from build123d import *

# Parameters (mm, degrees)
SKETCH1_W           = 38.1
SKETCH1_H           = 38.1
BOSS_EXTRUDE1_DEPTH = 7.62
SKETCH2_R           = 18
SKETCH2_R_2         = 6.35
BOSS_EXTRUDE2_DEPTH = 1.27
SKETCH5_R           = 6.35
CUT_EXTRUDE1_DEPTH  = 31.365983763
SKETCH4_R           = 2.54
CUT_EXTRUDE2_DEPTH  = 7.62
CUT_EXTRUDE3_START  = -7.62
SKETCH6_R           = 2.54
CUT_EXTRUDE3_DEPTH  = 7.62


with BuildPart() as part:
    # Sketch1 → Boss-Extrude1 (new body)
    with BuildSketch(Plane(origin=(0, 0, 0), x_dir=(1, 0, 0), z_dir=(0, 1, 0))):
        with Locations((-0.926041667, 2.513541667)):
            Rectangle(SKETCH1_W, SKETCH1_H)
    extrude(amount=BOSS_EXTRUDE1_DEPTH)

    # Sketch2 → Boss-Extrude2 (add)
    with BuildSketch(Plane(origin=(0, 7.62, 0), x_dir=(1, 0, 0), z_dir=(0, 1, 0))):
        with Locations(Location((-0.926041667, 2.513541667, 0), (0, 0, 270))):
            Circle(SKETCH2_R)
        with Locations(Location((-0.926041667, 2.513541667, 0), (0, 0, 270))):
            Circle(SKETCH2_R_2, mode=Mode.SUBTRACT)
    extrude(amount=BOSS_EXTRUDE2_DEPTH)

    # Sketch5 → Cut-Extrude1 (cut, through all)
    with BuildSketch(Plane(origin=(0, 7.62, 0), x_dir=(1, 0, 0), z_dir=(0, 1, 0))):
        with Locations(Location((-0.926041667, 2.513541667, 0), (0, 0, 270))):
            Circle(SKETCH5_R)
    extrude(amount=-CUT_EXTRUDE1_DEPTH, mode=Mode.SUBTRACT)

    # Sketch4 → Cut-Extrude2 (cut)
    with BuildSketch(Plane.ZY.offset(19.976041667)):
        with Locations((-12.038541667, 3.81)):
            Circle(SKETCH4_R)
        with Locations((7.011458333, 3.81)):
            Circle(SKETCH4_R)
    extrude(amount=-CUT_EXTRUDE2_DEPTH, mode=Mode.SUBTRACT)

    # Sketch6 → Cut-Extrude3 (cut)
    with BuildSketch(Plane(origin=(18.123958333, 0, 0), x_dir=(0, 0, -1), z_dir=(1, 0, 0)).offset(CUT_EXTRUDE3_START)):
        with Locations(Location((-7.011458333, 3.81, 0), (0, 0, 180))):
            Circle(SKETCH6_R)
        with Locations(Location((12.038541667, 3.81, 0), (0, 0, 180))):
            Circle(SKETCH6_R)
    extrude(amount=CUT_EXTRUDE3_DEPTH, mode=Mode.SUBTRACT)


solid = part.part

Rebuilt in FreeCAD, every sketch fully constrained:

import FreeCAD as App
import Part
import Sketcher

V = App.Vector
Q = App.Units.Quantity

doc = App.newDocument("Part")
body = doc.addObject("PartDesign::Body", "Body")

# Sketch on XZ plane
sketch1 = body.newObject("Sketcher::SketchObject", "Sketch")
sketch1.AttachmentSupport = (doc.getObject("XZ_Plane"), [""])
sketch1.MapMode = "FlatFace"
sketch1.addGeometry(Part.LineSegment(V(-20, -22, 0), V(-20, 17, 0)), False)
sketch1.addGeometry(Part.LineSegment(V(-20, 17, 0), V(18, 17, 0)), False)
sketch1.addGeometry(Part.LineSegment(V(18, 17, 0), V(18, -22, 0)), False)
sketch1.addGeometry(Part.LineSegment(V(18, -22, 0), V(-20, -22, 0)), False)
sketch1.addConstraint(Sketcher.Constraint("Coincident", 0, 2, 1, 1))
sketch1.addConstraint(Sketcher.Constraint("Coincident", 1, 2, 2, 1))
sketch1.addConstraint(Sketcher.Constraint("Coincident", 2, 2, 3, 1))
sketch1.addConstraint(Sketcher.Constraint("Coincident", 3, 2, 0, 1))
sketch1.addConstraint(Sketcher.Constraint("Vertical", 0))
sketch1.addConstraint(Sketcher.Constraint("Horizontal", 1))
sketch1.addConstraint(Sketcher.Constraint("Vertical", 2))
sketch1.addConstraint(Sketcher.Constraint("Horizontal", 3))
sketch1.addConstraint(Sketcher.Constraint("Equal", 3, 0))
sketch1.addConstraint(Sketcher.Constraint("DistanceX", 1, 1, 1, 2, Q("1.5 in")))
sketch1.addConstraint(Sketcher.Constraint("DistanceX", 0, 2, -1, 1, Q("19.976042 mm")))
sketch1.addConstraint(Sketcher.Constraint("DistanceY", -1, 1, 0, 2, Q("16.536458 mm")))
pad1 = body.newObject("PartDesign::Pad", "Pad")
pad1.Profile = sketch1
pad1.Length = Q("0.3 in")
pad1.Reversed = True

# Sketch on XZ plane
sketch2 = body.newObject("Sketcher::SketchObject", "Sketch001")
sketch2.AttachmentSupport = (doc.getObject("XZ_Plane"), [""])
sketch2.MapMode = "FlatFace"
sketch2.AttachmentOffset = App.Placement(V(0, 0, -0.3 * 25.4), App.Rotation())
sketch2.addGeometry(Part.Circle(V(-1, -3, 0), V(0, 0, 1), 18), False)
sketch2.addGeometry(Part.Circle(V(-1, -3, 0), V(0, 0, 1), 6), False)
sketch2.addConstraint(Sketcher.Constraint("Coincident", 1, 3, 0, 3))
sketch2.addConstraint(Sketcher.Constraint("Diameter", 1, Q("0.5 in")))
sketch2.addConstraint(Sketcher.Constraint("Diameter", 0, Q("36 mm")))
sketch2.addConstraint(Sketcher.Constraint("DistanceX", 0, 3, -1, 1, Q("0.926042 mm")))
sketch2.addConstraint(Sketcher.Constraint("DistanceY", 0, 3, -1, 1, Q("2.513542 mm")))
pad2 = body.newObject("PartDesign::Pad", "Pad001")
pad2.Profile = sketch2
pad2.Length = Q("0.05 in")
pad2.Reversed = True

# Sketch on XZ plane
sketch3 = body.newObject("Sketcher::SketchObject", "Sketch002")
sketch3.AttachmentSupport = (doc.getObject("XZ_Plane"), [""])
sketch3.MapMode = "FlatFace"
sketch3.AttachmentOffset = App.Placement(V(0, 0, -0.3 * 25.4), App.Rotation())
sketch3.addGeometry(Part.Circle(V(-1, -3, 0), V(0, 0, 1), 6), False)
sketch3.addConstraint(Sketcher.Constraint("Diameter", 0, Q("0.5 in")))
sketch3.addConstraint(Sketcher.Constraint("DistanceX", 0, 3, -1, 1, Q("0.926042 mm")))
sketch3.addConstraint(Sketcher.Constraint("DistanceY", 0, 3, -1, 1, Q("2.513542 mm")))
pocket1 = body.newObject("PartDesign::Pocket", "Pocket")
pocket1.Profile = sketch3
pocket1.Type = "ThroughAll"
pocket1.Reversed = True

# Sketch on YZ plane
sketch4 = body.newObject("Sketcher::SketchObject", "Sketch003")
sketch4.AttachmentSupport = (doc.getObject("YZ_Plane"), [""])
sketch4.MapMode = "FlatFace"
sketch4.AttachmentOffset = App.Placement(V(0, 0, -19.976042), App.Rotation())
sketch4.addGeometry(Part.Circle(V(3.8, -12, 0), V(0, 0, 1), 2.5), False)
sketch4.addGeometry(Part.Circle(V(3.8, 7, 0), V(0, 0, 1), 2.5), False)
sketch4.addConstraint(Sketcher.Constraint("Equal", 0, 1))
sketch4.addConstraint(Sketcher.Constraint("Vertical", 0, 3, 1, 3))
sketch4.addConstraint(Sketcher.Constraint("Diameter", 0, Q("0.2 in")))
sketch4.addConstraint(Sketcher.Constraint("DistanceX", -1, 1, 0, 3, Q("0.15 in")))
sketch4.addConstraint(Sketcher.Constraint("DistanceY", 0, 3, 1, 3, Q("0.75 in")))
sketch4.addConstraint(Sketcher.Constraint("DistanceY", 0, 3, -1, 1, Q("12.038542 mm")))
pocket2 = body.newObject("PartDesign::Pocket", "Pocket001")
pocket2.Profile = sketch4
pocket2.Length = Q("0.3 in")
pocket2.Reversed = True

# Sketch on YZ plane
sketch5 = body.newObject("Sketcher::SketchObject", "Sketch004")
sketch5.AttachmentSupport = (doc.getObject("YZ_Plane"), [""])
sketch5.MapMode = "FlatFace"
sketch5.AttachmentOffset = App.Placement(V(0, 0, 10.503958), App.Rotation())
sketch5.addGeometry(Part.Circle(V(3.8, 7, 0), V(0, 0, 1), 2.5), False)
sketch5.addGeometry(Part.Circle(V(3.8, -12, 0), V(0, 0, 1), 2.5), False)
sketch5.addConstraint(Sketcher.Constraint("Equal", 0, 1))
sketch5.addConstraint(Sketcher.Constraint("Vertical", 0, 3, 1, 3))
sketch5.addConstraint(Sketcher.Constraint("Diameter", 0, Q("0.2 in")))
sketch5.addConstraint(Sketcher.Constraint("DistanceX", -1, 1, 0, 3, Q("0.15 in")))
sketch5.addConstraint(Sketcher.Constraint("DistanceY", 1, 3, 0, 3, Q("0.75 in")))
sketch5.addConstraint(Sketcher.Constraint("DistanceY", -1, 1, 0, 3, Q("7.011458 mm")))
pocket3 = body.newObject("PartDesign::Pocket", "Pocket002")
pocket3.Profile = sketch5
pocket3.Length = Q("0.3 in")
pocket3.Reversed = True

doc.recompute()
